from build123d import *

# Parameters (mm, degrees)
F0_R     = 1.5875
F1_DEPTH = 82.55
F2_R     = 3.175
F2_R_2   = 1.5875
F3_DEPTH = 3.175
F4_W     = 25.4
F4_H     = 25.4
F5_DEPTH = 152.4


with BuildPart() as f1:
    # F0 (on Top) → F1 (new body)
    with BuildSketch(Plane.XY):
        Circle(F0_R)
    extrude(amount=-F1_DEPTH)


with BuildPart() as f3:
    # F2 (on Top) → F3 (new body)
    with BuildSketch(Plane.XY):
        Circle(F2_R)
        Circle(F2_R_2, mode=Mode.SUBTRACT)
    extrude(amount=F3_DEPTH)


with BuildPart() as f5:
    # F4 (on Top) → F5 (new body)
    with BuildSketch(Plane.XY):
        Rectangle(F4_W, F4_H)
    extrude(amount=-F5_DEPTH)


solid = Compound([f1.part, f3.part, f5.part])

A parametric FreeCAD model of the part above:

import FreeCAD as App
import Part
import Sketcher
from FreeCAD import Vector
Q = App.Units.Quantity


def add_polygon(sketch, points):
    """Adds a closed chain of lines whose ends are joined by coincident constraints."""
    first, n = sketch.GeometryCount, len(points)
    for a, b in zip(points, points[1:] + points[:1]):
        sketch.addGeometry(Part.LineSegment(App.Vector(*a, 0), App.Vector(*b, 0)), False)
    for i in range(n):
        sketch.addConstraint(Sketcher.Constraint("Coincident", first + i, 2, first + (i + 1) % n, 1))

doc = App.newDocument("Part")
body = doc.addObject("PartDesign::Body", "Body")

# Sketch on XY plane
sketch1 = body.newObject("Sketcher::SketchObject", "Sketch")
sketch1.AttachmentSupport = (doc.getObject("XY_Plane"), [""])
sketch1.MapMode = "FlatFace"
sketch1.addGeometry(Part.Circle(Vector(0, 0, 0), Vector(0, 0, 1), 1.6), False)
sketch1.addConstraint([
    Sketcher.Constraint("Coincident", 0, 3, -1, 1),
    Sketcher.Constraint("Diameter", 0, Q("0.125 in")),
])
pad1 = body.newObject("PartDesign::Pad", "Pad")
pad1.Profile = sketch1
pad1.Length = Q("3.25 in")
pad1.Reversed = True
body2 = doc.addObject("PartDesign::Body", "Body001")

# Sketch on XY plane
sketch2 = body2.newObject("Sketcher::SketchObject", "Sketch001")
sketch2.AttachmentSupport = (doc.getObject("XY_Plane001"), [""])
sketch2.MapMode = "FlatFace"
sketch2.addGeometry([
    Part.Circle(Vector(0, 0, 0), Vector(0, 0, 1), 3.2),
    Part.Circle(Vector(0, 0, 0), Vector(0, 0, 1), 1.6),
], False)
sketch2.addConstraint([
    Sketcher.Constraint("Coincident", 0, 3, -1, 1),
    Sketcher.Constraint("Coincident", 1, 3, -1, 1),
    Sketcher.Constraint("Diameter", 0, Q("0.25 in")),
    Sketcher.Constraint("Diameter", 1, Q("0.125 in")),
])
pad2 = body2.newObject("PartDesign::Pad", "Pad001")
pad2.Profile = sketch2
pad2.Length = Q("0.125 in")
body3 = doc.addObject("PartDesign::Body", "Body002")

# Sketch on XY plane
sketch3 = body3.newObject("Sketcher::SketchObject", "Sketch002")
sketch3.AttachmentSupport = (doc.getObject("XY_Plane002"), [""])
sketch3.MapMode = "FlatFace"
add_polygon(sketch3, [(-13, 13), (-13, -13), (13, -13), (13, 13)])  # lines 0-3
sketch3.addConstraint([
    Sketcher.Constraint("Vertical", 0),
    Sketcher.Constraint("Horizontal", 1),
    Sketcher.Constraint("Vertical", 2),
    Sketcher.Constraint("Horizontal", 3),
    Sketcher.Constraint("Symmetric", 0, 2, 2, 2, -1, 1),
    Sketcher.Constraint("Equal", 3, 0),
    Sketcher.Constraint("DistanceX", 1, 1, 1, 2, Q("1 in")),
])
pad3 = body3.newObject("PartDesign::Pad", "Pad002")
pad3.Profile = sketch3
pad3.Length = Q("6 in")
pad3.Reversed = True

doc.recompute()
